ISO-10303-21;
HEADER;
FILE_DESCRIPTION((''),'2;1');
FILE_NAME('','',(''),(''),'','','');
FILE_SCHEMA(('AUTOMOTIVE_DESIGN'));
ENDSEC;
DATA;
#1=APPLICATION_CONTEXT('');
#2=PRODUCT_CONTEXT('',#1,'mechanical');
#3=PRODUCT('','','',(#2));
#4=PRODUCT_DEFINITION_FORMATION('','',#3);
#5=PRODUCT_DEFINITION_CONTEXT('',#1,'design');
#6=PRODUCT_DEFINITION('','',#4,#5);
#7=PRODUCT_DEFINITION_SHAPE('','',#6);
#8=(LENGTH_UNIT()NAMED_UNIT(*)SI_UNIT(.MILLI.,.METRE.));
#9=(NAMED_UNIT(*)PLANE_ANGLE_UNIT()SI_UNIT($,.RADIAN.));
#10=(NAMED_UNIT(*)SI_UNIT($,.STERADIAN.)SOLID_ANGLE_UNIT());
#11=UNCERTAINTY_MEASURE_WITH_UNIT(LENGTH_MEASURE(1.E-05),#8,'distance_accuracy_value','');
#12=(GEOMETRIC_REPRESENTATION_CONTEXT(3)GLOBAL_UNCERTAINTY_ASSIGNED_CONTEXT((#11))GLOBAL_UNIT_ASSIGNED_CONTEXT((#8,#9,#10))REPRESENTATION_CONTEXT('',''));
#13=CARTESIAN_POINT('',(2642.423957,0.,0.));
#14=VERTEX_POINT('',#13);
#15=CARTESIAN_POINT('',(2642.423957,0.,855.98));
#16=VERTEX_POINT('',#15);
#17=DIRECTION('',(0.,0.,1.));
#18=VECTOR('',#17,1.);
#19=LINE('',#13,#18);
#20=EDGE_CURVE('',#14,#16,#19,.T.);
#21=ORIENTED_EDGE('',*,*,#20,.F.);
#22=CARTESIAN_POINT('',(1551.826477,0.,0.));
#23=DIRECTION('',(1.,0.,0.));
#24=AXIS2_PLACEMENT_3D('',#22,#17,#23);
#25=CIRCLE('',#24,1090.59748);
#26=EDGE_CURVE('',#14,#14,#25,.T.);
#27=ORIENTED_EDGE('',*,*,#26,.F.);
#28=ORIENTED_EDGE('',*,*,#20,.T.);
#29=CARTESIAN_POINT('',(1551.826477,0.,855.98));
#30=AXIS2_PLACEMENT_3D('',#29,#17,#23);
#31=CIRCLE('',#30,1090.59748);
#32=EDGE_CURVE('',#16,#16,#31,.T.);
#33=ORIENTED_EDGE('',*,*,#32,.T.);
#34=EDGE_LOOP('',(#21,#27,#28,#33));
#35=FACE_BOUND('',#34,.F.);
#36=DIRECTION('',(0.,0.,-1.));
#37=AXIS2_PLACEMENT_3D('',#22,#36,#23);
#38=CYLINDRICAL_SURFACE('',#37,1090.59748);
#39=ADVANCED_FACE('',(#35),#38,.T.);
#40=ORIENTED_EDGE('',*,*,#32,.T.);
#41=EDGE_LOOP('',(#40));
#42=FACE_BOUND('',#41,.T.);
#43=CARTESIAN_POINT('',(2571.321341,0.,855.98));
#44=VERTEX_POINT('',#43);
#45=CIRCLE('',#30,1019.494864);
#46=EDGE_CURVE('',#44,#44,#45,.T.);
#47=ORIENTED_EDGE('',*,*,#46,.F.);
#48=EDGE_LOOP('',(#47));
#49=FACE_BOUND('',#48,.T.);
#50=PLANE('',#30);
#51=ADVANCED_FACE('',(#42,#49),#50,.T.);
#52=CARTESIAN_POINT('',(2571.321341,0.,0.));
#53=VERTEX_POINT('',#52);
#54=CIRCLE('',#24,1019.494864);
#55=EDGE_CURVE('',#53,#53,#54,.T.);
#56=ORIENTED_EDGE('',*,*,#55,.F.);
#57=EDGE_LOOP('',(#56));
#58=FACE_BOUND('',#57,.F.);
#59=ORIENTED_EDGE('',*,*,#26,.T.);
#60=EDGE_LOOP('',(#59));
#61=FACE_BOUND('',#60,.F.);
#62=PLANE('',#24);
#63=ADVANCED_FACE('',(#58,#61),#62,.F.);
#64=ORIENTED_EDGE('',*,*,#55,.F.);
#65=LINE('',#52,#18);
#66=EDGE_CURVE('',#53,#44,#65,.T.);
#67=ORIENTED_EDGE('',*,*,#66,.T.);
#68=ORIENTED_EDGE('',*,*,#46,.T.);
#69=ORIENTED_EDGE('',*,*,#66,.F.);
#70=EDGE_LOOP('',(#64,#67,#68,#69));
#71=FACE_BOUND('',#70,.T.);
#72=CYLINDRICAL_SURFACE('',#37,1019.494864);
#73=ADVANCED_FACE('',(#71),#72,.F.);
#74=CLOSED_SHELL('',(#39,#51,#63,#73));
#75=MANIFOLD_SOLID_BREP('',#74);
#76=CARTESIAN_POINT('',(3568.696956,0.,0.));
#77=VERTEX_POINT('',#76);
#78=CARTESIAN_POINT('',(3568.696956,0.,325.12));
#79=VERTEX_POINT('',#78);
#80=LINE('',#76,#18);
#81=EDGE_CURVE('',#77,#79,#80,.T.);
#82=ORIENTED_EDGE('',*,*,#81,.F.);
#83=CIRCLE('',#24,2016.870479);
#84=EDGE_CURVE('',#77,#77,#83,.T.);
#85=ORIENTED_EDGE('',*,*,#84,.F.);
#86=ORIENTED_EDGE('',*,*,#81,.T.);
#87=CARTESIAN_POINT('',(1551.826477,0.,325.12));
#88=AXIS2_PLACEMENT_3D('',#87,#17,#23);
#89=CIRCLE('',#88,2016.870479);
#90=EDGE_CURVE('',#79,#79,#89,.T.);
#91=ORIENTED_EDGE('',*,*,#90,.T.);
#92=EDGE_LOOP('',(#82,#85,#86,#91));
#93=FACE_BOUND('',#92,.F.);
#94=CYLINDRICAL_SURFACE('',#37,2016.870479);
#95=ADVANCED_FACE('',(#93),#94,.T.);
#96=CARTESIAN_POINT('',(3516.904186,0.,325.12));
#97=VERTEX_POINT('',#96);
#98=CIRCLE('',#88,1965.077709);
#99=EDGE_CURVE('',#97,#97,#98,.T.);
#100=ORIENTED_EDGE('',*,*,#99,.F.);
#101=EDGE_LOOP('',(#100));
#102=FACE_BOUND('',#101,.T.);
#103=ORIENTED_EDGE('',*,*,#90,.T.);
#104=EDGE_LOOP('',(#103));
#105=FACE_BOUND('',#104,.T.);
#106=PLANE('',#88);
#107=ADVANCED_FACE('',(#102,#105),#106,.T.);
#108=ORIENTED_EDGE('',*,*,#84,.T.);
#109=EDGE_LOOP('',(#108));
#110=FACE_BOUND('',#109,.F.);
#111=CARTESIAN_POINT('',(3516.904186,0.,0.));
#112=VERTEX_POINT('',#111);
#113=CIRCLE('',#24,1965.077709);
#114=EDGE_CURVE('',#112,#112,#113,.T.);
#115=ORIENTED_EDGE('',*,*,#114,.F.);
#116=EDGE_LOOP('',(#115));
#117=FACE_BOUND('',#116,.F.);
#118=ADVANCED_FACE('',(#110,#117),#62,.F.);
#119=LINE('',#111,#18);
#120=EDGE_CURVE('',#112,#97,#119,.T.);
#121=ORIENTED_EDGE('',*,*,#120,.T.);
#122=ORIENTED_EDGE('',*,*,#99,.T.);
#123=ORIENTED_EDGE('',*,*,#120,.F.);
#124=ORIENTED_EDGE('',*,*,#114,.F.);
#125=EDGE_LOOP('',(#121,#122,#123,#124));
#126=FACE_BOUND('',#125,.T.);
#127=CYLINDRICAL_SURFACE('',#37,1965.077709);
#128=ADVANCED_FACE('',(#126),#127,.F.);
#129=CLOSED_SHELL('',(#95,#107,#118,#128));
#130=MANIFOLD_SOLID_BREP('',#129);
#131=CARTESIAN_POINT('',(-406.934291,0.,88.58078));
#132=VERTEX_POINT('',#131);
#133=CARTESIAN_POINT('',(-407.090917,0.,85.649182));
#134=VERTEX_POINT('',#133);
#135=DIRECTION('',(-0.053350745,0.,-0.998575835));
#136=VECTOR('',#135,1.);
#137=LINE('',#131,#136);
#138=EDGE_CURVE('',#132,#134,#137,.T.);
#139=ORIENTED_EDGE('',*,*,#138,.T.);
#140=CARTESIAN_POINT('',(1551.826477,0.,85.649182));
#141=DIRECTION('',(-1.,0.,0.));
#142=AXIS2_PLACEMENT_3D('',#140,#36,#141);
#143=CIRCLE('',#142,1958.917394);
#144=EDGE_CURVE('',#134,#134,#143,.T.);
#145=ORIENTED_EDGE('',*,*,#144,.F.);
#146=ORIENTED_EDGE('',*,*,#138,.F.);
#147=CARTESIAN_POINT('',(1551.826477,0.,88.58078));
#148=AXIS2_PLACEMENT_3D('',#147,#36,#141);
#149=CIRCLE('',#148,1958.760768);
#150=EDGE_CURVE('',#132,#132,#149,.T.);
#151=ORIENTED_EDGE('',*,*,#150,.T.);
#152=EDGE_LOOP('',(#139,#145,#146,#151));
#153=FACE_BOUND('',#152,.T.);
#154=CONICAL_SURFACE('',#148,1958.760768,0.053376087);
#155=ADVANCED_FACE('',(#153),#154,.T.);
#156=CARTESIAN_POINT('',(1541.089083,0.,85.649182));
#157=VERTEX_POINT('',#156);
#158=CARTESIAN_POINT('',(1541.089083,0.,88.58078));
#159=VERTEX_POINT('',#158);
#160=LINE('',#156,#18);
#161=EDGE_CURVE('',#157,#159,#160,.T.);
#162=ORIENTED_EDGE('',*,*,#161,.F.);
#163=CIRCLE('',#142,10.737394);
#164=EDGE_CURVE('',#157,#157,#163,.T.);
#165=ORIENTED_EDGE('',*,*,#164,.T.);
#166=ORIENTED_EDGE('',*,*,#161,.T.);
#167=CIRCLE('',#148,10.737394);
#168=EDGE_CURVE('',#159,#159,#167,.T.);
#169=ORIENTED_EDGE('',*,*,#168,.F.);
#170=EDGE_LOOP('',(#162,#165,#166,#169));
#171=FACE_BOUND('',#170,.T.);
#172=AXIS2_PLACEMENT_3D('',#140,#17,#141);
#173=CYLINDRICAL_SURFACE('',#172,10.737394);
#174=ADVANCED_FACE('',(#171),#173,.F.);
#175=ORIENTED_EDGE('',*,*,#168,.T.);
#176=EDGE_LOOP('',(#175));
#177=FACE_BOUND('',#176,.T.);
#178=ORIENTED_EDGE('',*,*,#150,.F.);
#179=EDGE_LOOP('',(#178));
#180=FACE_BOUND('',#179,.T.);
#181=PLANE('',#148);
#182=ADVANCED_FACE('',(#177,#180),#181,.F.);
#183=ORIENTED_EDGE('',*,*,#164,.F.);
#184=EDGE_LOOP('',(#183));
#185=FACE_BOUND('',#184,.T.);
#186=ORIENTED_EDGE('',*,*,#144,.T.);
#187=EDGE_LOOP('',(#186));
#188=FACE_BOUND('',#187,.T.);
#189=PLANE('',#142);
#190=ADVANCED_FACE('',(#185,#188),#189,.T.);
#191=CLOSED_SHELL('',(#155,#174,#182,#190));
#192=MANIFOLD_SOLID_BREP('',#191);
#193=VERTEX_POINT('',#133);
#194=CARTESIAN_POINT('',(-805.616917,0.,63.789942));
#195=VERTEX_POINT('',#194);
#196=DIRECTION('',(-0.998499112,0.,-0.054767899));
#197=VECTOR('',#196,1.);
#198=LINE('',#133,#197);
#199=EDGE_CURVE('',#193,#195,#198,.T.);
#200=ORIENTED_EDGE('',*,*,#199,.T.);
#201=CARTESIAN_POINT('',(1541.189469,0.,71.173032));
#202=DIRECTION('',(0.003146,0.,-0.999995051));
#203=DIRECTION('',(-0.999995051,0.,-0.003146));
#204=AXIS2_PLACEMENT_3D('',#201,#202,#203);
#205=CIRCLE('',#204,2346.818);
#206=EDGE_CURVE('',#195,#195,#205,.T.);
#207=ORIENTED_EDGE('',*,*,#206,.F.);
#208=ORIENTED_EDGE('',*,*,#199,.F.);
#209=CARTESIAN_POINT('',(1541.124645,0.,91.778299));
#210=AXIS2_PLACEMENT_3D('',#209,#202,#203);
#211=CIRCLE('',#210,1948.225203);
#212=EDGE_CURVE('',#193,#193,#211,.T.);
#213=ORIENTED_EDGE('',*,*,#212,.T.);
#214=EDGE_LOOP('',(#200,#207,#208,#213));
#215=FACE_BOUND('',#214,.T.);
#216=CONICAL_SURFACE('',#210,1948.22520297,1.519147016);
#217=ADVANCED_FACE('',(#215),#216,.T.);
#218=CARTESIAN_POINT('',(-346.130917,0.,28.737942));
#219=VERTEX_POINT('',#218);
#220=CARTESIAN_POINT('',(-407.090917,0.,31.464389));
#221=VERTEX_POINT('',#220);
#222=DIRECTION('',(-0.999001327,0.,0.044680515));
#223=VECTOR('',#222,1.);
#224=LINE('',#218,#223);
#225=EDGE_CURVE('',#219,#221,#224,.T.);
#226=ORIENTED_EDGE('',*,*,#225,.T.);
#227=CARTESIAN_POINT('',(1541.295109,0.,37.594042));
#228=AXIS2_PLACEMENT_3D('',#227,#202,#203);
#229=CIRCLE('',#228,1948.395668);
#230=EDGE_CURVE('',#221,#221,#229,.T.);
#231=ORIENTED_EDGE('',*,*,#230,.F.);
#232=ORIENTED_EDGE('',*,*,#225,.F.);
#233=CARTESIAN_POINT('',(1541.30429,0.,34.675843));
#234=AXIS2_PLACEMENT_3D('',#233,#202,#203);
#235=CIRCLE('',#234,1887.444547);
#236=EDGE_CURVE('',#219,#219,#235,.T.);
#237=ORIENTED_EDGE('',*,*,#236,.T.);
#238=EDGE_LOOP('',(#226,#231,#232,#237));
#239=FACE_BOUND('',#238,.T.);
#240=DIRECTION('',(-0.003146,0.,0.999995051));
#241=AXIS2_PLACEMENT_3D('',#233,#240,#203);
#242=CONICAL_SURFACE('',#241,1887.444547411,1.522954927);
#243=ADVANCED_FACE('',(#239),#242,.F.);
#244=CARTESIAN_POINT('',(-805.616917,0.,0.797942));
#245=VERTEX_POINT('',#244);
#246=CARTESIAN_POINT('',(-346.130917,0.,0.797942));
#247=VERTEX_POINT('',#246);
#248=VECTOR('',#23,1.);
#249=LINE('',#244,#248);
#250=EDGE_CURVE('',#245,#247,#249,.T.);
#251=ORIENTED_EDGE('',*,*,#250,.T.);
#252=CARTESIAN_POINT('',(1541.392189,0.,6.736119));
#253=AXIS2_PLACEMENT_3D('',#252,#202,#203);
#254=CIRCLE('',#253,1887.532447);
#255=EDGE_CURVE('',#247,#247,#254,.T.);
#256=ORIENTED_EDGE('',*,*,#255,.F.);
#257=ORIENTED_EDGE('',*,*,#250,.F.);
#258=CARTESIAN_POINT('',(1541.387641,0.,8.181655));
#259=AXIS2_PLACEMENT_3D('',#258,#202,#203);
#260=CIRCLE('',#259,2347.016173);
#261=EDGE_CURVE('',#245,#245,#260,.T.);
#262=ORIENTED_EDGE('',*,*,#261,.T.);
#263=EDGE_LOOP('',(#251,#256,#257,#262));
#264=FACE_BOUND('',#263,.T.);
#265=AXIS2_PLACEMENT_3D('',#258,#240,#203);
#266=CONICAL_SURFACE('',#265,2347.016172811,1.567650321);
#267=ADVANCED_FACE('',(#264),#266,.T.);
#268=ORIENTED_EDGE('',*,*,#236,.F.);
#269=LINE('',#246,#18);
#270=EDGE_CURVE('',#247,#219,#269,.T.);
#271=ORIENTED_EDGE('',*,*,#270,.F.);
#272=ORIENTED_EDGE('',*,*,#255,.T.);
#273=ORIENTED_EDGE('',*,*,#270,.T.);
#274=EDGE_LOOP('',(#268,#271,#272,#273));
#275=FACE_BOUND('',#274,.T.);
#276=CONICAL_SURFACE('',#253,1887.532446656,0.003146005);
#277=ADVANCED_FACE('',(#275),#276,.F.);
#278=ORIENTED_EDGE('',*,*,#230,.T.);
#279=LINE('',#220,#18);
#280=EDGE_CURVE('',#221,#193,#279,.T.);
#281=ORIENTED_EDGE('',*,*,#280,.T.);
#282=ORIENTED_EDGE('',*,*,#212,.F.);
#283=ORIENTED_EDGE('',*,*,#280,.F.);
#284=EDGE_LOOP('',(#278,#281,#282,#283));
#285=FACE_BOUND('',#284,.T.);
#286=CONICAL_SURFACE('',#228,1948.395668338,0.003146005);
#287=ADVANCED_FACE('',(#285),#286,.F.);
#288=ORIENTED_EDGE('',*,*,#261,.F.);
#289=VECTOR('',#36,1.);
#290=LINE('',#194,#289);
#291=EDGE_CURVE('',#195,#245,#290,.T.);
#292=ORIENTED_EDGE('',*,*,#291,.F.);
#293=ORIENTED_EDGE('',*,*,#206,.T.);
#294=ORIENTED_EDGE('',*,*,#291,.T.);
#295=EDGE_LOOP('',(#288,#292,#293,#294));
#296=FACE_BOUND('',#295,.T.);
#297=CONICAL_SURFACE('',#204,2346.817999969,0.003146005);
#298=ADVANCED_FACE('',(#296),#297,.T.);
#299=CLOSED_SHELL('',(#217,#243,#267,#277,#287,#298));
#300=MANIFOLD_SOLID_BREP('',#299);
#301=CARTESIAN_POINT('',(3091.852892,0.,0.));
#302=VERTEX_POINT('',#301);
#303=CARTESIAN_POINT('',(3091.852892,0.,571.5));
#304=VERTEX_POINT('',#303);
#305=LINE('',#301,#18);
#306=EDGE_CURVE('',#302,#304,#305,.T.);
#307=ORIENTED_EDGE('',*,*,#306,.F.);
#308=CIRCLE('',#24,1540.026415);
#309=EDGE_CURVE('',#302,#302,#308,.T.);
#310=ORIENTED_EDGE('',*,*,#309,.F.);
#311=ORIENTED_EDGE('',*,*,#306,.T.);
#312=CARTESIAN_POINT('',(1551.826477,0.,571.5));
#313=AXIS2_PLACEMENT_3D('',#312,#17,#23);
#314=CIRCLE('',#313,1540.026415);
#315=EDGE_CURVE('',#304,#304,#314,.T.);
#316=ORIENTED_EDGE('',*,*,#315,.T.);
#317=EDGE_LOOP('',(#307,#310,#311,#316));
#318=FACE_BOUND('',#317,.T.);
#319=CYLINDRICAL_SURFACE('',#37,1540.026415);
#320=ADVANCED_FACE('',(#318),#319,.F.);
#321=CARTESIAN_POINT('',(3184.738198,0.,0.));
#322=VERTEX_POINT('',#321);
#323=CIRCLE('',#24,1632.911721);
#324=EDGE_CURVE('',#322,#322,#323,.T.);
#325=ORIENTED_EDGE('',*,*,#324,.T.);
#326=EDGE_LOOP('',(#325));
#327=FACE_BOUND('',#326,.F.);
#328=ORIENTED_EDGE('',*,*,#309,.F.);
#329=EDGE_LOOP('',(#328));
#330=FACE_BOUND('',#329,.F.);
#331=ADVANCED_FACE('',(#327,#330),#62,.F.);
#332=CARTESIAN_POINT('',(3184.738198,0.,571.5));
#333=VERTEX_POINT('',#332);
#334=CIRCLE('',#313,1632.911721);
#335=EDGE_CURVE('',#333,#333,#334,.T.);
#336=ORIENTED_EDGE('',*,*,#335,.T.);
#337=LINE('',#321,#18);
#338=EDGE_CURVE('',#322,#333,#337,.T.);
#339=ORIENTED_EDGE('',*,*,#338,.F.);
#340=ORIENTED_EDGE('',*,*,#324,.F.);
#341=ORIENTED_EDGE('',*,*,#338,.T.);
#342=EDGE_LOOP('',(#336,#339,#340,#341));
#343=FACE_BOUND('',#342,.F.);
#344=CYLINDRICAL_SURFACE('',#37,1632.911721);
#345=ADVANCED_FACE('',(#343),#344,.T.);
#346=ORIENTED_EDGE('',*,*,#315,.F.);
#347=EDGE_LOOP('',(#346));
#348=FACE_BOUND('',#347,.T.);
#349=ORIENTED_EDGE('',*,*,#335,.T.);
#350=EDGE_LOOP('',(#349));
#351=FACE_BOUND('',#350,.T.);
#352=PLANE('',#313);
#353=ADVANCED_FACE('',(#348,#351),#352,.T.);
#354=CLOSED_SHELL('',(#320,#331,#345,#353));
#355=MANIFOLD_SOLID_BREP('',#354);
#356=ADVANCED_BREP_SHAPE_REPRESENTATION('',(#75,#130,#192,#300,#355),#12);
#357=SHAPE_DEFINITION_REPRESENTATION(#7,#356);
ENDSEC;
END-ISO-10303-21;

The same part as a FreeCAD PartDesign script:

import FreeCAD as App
import Part
import Sketcher
Q = App.Units.Quantity


def add_polygon(sketch, points):
    """Adds a closed chain of lines whose ends are joined by coincident constraints."""
    first, n = sketch.GeometryCount, len(points)
    for a, b in zip(points, points[1:] + points[:1]):
        sketch.addGeometry(Part.LineSegment(App.Vector(*a, 0), App.Vector(*b, 0)), False)
    for i in range(n):
        sketch.addConstraint(Sketcher.Constraint("Coincident", first + i, 2, first + (i + 1) % n, 1))

doc = App.newDocument("Part")
params = doc.addObject("Spreadsheet::Sheet", "Params")
for row, (alias, value) in enumerate([
    ("sketch1_height", "1.1 in"),
    ("sketch1_width", "18.09 in"),
    ("sketch1_height2", "2.48 in"),
    ("revolution_angle", "360 deg"),
    ("pad1_length", "12.8 in"),
    ("pad2_length", "22.5 in"),
    ("pad3_length", "33.7 in"),
    ("sketch5_width", "76.7 in"),
    ("revolution2_angle", "360 deg"),
], start=1):
    params.set(f"A{row}", alias)
    params.set(f"B{row}", "=" + value)
    params.setAlias(f"B{row}", alias)

body = doc.addObject("PartDesign::Body", "Body")

sketch1 = doc.addObject("Sketcher::SketchObject", "Sketch")
body.addObject(sketch1)
sketch1.AttachmentSupport = (doc.XZ_Plane, [""])
sketch1.MapMode = "FlatFace"
add_polygon(sketch1, [(-806, 1), (-346, 1), (-346, 29), (-407, 31), (-407, 86), (-806, 64)])
sketch1.addGeometry(Part.LineSegment(App.Vector(1541, 92, 0), App.Vector(1541, 7, 0)), True)
sketch1.addConstraint([
    Sketcher.Constraint("Horizontal", 0),
    Sketcher.Constraint("Vertical", 1),
    Sketcher.Constraint("Vertical", 3),
    Sketcher.Constraint("Vertical", 5),
    Sketcher.Constraint("DistanceY", 1, 1, 1, 2, Q("1.1 in")),
    Sketcher.Constraint("DistanceX", 0, 1, 0, 2, Q("18.09 in")),
    Sketcher.Constraint("DistanceY", 5, 2, 5, 1, Q("2.48 in")),
    Sketcher.Constraint("DistanceX", 2, 2, 1, 2, Q("2.4 in")),
    Sketcher.Constraint("DistanceY", 1, 2, 3, 2, Q("2.2406 in")),
    Sketcher.Constraint("DistanceX", 1, 2, 6, 1, Q("74.3014001 in")),
    Sketcher.Constraint("Distance", 6, Q("85.0426 mm")),
    Sketcher.Constraint("DistanceY", -1, 1, 6, 1, Q("91.778298 mm")),
    Sketcher.Constraint("Distance", 2, Q("61.02094 mm")),
    Sketcher.Constraint("DistanceY", -1, 1, 2, 2, Q("31.464389 mm")),
    Sketcher.Constraint("DistanceX", -1, 1, 6, 2, Q("1541.392189 mm")),
    Sketcher.Constraint("DistanceX", 0, 2, -1, 1, Q("346.130917 mm")),
])
sketch1.setExpression("Constraints[10]", "Params.sketch1_height")
sketch1.setExpression("Constraints[11]", "Params.sketch1_width")
sketch1.setExpression("Constraints[12]", "Params.sketch1_height2")
revolution = doc.addObject("PartDesign::Revolution", "Revolution")
body.addObject(revolution)
revolution.Profile = sketch1
revolution.ReferenceAxis = (sketch1, ["Axis0"])
revolution.setExpression("Angle", "Params.revolution_angle")
body2 = doc.addObject("PartDesign::Body", "Body001")

sketch2 = doc.addObject("Sketcher::SketchObject", "Sketch001")
body2.addObject(sketch2)
sketch2.AttachmentSupport = (doc.getObject("XY_Plane001"), [""])
sketch2.MapMode = "FlatFace"
sketch2.addGeometry([
    Part.Circle(App.Vector(1552, 0, 0), App.Vector(0, 0, 1), 2017),
    Part.Circle(App.Vector(1552, 0, 0), App.Vector(0, 0, 1), 1965),
], False)
sketch2.addConstraint([
    Sketcher.Constraint("Coincident", 1, 3, 0, 3),
    Sketcher.Constraint("PointOnObject", 0, 3, -1),
    Sketcher.Constraint("Diameter", 0, Q("4033.740958 mm")),
    Sketcher.Constraint("Diameter", 1, Q("3930.155418 mm")),
    Sketcher.Constraint("DistanceX", -1, 1, 0, 3, Q("1551.826477 mm")),
])
pad1 = doc.addObject("PartDesign::Pad", "Pad")
body2.addObject(pad1)
pad1.Profile = sketch2
pad1.setExpression("Length", "Params.pad1_length")
body3 = doc.addObject("PartDesign::Body", "Body002")

sketch3 = doc.addObject("Sketcher::SketchObject", "Sketch002")
body3.addObject(sketch3)
sketch3.AttachmentSupport = (doc.getObject("XY_Plane002"), [""])
sketch3.MapMode = "FlatFace"
sketch3.addGeometry([
    Part.Circle(App.Vector(1552, 0, 0), App.Vector(0, 0, 1), 1633),
    Part.Circle(App.Vector(1552, 0, 0), App.Vector(0, 0, 1), 1540),
], False)
sketch3.addConstraint([
    Sketcher.Constraint("Coincident", 1, 3, 0, 3),
    Sketcher.Constraint("PointOnObject", 0, 3, -1),
    Sketcher.Constraint("Diameter", 0, Q("3265.823442 mm")),
    Sketcher.Constraint("Diameter", 1, Q("3080.05283 mm")),
    Sketcher.Constraint("DistanceX", -1, 1, 0, 3, Q("1551.826477 mm")),
])
pad2 = doc.addObject("PartDesign::Pad", "Pad001")
body3.addObject(pad2)
pad2.Profile = sketch3
pad2.setExpression("Length", "Params.pad2_length")
body4 = doc.addObject("PartDesign::Body", "Body003")

sketch4 = doc.addObject("Sketcher::SketchObject", "Sketch003")
body4.addObject(sketch4)
sketch4.AttachmentSupport = (doc.getObject("XY_Plane003"), [""])
sketch4.MapMode = "FlatFace"
sketch4.addGeometry([
    Part.Circle(App.Vector(1552, 0, 0), App.Vector(0, 0, 1), 1091),
    Part.Circle(App.Vector(1552, 0, 0), App.Vector(0, 0, 1), 1019),
], False)
sketch4.addConstraint([
    Sketcher.Constraint("Coincident", 1, 3, 0, 3),
    Sketcher.Constraint("PointOnObject", 0, 3, -1),
    Sketcher.Constraint("Diameter", 0, Q("2181.19496 mm")),
    Sketcher.Constraint("Diameter", 1, Q("2038.989728 mm")),
    Sketcher.Constraint("DistanceX", -1, 1, 0, 3, Q("1551.826477 mm")),
])
pad3 = doc.addObject("PartDesign::Pad", "Pad002")
body4.addObject(pad3)
pad3.Profile = sketch4
pad3.setExpression("Length", "Params.pad3_length")
body5 = doc.addObject("PartDesign::Body", "Body004")

sketch5 = doc.addObject("Sketcher::SketchObject", "Sketch004")
body5.addObject(sketch5)
sketch5.AttachmentSupport = (doc.getObject("XZ_Plane004"), [""])
sketch5.MapMode = "FlatFace"
add_polygon(sketch5, [(-406.9, 88.6), (-407.1, 85.6), (1541.1, 85.6), (1541.1, 88.6)])
sketch5.addGeometry(Part.LineSegment(App.Vector(1551.8, 88.6, 0), App.Vector(1551.8, 85.6, 0)), True)
sketch5.addConstraint([
    Sketcher.Constraint("Horizontal", 1),
    Sketcher.Constraint("Vertical", 2),
    Sketcher.Constraint("Horizontal", 3),
    Sketcher.Constraint("Vertical", 4),
    Sketcher.Constraint("Horizontal", 3, 2, 4, 1),
    Sketcher.Constraint("Horizontal", 1, 2, 4, 2),
    Sketcher.Constraint("DistanceX", 1, 1, 1, 2, Q("76.7 in")),
    Sketcher.Constraint("DistanceY", 2, 1, 2, 2, Q("2.931598 mm")),
    Sketcher.Constraint("Distance", 0, Q("2.935779 mm")),
    Sketcher.Constraint("DistanceY", -1, 1, 0, 2, Q("85.649182 mm")),
    Sketcher.Constraint("DistanceX", 3, 2, -1, 1, Q("406.934291 mm")),
    Sketcher.Constraint("DistanceX", 3, 2, 4, 1, Q("1958.760768 mm")),
])
sketch5.setExpression("Constraints[10]", "Params.sketch5_width")
revolution2 = doc.addObject("PartDesign::Revolution", "Revolution001")
body5.addObject(revolution2)
revolution2.Profile = sketch5
revolution2.ReferenceAxis = (sketch5, ["Axis0"])
revolution2.setExpression("Angle", "Params.revolution2_angle")

doc.recompute()
